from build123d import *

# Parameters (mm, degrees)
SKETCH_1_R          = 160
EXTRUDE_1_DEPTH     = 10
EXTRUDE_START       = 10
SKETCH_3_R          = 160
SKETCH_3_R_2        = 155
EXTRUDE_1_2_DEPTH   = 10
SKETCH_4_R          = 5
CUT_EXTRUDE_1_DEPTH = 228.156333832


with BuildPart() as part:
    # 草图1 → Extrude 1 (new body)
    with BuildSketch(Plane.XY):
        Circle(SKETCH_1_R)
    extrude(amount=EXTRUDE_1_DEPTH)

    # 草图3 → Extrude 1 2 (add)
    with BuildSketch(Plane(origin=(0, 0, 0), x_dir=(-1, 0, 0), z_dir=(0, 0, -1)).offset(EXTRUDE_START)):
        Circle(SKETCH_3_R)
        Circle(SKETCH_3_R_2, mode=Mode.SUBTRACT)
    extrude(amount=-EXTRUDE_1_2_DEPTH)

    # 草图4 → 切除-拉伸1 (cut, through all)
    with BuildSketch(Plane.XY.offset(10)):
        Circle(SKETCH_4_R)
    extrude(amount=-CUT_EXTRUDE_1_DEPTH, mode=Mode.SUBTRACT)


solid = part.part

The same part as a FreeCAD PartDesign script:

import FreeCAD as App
import Part
import Sketcher

doc = App.newDocument("Part")
params = doc.addObject("Spreadsheet::Sheet", "Params")
for row, (alias, value) in enumerate([
    ("sketch1_diameter", "320 mm"),
    ("pad1_length", "10 mm"),
    ("sketch2_diameter", "320 mm"),
    ("sketch2_diameter2", "310 mm"),
    ("pad2_length", "10 mm"),
    ("sketch3_diameter", "10 mm"),
], start=1):
    params.set(f"A{row}", alias)
    params.set(f"B{row}", "=" + value)
    params.setAlias(f"B{row}", alias)

body = doc.addObject("PartDesign::Body", "Body")

sketch1 = doc.addObject("Sketcher::SketchObject", "Sketch")
body.addObject(sketch1)
sketch1.AttachmentSupport = (doc.XY_Plane, [""])
sketch1.MapMode = "FlatFace"
sketch1.addGeometry(Part.Circle(App.Vector(0, 0, 0), App.Vector(0, 0, 1), 160), False)
sketch1.addConstraint([
    Sketcher.Constraint("Coincident", 0, 3, -1, 1),
    Sketcher.Constraint("Diameter", 0, 320.0),
])
sketch1.setExpression("Constraints[1]", "Params.sketch1_diameter")
pad1 = doc.addObject("PartDesign::Pad", "Pad")
body.addObject(pad1)
pad1.Profile = sketch1
pad1.setExpression("Length", "Params.pad1_length")

sketch2 = doc.addObject("Sketcher::SketchObject", "Sketch001")
body.addObject(sketch2)
sketch2.AttachmentSupport = (doc.XY_Plane, [""])
sketch2.MapMode = "FlatFace"
sketch2.AttachmentOffset = App.Placement(App.Vector(0, 0, -10), App.Rotation())
sketch2.addGeometry([
    Part.Circle(App.Vector(0, 0, 0), App.Vector(0, 0, 1), 160),
    Part.Circle(App.Vector(0, 0, 0), App.Vector(0, 0, 1), 155),
], False)
sketch2.addConstraint([
    Sketcher.Constraint("Coincident", 0, 3, -1, 1),
    Sketcher.Constraint("Coincident", 1, 3, -1, 1),
    Sketcher.Constraint("Diameter", 0, 320.0),
    Sketcher.Constraint("Diameter", 1, 310.0),
])
sketch2.setExpression("Constraints[2]", "Params.sketch2_diameter")
sketch2.setExpression("Constraints[3]", "Params.sketch2_diameter2")
pad2 = doc.addObject("PartDesign::Pad", "Pad001")
body.addObject(pad2)
pad2.Profile = sketch2
pad2.setExpression("Length", "Params.pad2_length")

sketch3 = doc.addObject("Sketcher::SketchObject", "Sketch002")
body.addObject(sketch3)
sketch3.AttachmentSupport = (doc.XY_Plane, [""])
sketch3.MapMode = "FlatFace"
sketch3.AttachmentOffset = App.Placement(App.Vector(0, 0, 10), App.Rotation())
sketch3.addGeometry(Part.Circle(App.Vector(0, 0, 0), App.Vector(0, 0, 1), 5), False)
sketch3.addConstraint([
    Sketcher.Constraint("Coincident", 0, 3, -1, 1),
    Sketcher.Constraint("Diameter", 0, 10.0),
])
sketch3.setExpression("Constraints[1]", "Params.sketch3_diameter")
pocket1 = doc.addObject("PartDesign::Pocket", "Pocket")
body.addObject(pocket1)
pocket1.Profile = sketch3
pocket1.Type = "ThroughAll"

doc.recompute()
